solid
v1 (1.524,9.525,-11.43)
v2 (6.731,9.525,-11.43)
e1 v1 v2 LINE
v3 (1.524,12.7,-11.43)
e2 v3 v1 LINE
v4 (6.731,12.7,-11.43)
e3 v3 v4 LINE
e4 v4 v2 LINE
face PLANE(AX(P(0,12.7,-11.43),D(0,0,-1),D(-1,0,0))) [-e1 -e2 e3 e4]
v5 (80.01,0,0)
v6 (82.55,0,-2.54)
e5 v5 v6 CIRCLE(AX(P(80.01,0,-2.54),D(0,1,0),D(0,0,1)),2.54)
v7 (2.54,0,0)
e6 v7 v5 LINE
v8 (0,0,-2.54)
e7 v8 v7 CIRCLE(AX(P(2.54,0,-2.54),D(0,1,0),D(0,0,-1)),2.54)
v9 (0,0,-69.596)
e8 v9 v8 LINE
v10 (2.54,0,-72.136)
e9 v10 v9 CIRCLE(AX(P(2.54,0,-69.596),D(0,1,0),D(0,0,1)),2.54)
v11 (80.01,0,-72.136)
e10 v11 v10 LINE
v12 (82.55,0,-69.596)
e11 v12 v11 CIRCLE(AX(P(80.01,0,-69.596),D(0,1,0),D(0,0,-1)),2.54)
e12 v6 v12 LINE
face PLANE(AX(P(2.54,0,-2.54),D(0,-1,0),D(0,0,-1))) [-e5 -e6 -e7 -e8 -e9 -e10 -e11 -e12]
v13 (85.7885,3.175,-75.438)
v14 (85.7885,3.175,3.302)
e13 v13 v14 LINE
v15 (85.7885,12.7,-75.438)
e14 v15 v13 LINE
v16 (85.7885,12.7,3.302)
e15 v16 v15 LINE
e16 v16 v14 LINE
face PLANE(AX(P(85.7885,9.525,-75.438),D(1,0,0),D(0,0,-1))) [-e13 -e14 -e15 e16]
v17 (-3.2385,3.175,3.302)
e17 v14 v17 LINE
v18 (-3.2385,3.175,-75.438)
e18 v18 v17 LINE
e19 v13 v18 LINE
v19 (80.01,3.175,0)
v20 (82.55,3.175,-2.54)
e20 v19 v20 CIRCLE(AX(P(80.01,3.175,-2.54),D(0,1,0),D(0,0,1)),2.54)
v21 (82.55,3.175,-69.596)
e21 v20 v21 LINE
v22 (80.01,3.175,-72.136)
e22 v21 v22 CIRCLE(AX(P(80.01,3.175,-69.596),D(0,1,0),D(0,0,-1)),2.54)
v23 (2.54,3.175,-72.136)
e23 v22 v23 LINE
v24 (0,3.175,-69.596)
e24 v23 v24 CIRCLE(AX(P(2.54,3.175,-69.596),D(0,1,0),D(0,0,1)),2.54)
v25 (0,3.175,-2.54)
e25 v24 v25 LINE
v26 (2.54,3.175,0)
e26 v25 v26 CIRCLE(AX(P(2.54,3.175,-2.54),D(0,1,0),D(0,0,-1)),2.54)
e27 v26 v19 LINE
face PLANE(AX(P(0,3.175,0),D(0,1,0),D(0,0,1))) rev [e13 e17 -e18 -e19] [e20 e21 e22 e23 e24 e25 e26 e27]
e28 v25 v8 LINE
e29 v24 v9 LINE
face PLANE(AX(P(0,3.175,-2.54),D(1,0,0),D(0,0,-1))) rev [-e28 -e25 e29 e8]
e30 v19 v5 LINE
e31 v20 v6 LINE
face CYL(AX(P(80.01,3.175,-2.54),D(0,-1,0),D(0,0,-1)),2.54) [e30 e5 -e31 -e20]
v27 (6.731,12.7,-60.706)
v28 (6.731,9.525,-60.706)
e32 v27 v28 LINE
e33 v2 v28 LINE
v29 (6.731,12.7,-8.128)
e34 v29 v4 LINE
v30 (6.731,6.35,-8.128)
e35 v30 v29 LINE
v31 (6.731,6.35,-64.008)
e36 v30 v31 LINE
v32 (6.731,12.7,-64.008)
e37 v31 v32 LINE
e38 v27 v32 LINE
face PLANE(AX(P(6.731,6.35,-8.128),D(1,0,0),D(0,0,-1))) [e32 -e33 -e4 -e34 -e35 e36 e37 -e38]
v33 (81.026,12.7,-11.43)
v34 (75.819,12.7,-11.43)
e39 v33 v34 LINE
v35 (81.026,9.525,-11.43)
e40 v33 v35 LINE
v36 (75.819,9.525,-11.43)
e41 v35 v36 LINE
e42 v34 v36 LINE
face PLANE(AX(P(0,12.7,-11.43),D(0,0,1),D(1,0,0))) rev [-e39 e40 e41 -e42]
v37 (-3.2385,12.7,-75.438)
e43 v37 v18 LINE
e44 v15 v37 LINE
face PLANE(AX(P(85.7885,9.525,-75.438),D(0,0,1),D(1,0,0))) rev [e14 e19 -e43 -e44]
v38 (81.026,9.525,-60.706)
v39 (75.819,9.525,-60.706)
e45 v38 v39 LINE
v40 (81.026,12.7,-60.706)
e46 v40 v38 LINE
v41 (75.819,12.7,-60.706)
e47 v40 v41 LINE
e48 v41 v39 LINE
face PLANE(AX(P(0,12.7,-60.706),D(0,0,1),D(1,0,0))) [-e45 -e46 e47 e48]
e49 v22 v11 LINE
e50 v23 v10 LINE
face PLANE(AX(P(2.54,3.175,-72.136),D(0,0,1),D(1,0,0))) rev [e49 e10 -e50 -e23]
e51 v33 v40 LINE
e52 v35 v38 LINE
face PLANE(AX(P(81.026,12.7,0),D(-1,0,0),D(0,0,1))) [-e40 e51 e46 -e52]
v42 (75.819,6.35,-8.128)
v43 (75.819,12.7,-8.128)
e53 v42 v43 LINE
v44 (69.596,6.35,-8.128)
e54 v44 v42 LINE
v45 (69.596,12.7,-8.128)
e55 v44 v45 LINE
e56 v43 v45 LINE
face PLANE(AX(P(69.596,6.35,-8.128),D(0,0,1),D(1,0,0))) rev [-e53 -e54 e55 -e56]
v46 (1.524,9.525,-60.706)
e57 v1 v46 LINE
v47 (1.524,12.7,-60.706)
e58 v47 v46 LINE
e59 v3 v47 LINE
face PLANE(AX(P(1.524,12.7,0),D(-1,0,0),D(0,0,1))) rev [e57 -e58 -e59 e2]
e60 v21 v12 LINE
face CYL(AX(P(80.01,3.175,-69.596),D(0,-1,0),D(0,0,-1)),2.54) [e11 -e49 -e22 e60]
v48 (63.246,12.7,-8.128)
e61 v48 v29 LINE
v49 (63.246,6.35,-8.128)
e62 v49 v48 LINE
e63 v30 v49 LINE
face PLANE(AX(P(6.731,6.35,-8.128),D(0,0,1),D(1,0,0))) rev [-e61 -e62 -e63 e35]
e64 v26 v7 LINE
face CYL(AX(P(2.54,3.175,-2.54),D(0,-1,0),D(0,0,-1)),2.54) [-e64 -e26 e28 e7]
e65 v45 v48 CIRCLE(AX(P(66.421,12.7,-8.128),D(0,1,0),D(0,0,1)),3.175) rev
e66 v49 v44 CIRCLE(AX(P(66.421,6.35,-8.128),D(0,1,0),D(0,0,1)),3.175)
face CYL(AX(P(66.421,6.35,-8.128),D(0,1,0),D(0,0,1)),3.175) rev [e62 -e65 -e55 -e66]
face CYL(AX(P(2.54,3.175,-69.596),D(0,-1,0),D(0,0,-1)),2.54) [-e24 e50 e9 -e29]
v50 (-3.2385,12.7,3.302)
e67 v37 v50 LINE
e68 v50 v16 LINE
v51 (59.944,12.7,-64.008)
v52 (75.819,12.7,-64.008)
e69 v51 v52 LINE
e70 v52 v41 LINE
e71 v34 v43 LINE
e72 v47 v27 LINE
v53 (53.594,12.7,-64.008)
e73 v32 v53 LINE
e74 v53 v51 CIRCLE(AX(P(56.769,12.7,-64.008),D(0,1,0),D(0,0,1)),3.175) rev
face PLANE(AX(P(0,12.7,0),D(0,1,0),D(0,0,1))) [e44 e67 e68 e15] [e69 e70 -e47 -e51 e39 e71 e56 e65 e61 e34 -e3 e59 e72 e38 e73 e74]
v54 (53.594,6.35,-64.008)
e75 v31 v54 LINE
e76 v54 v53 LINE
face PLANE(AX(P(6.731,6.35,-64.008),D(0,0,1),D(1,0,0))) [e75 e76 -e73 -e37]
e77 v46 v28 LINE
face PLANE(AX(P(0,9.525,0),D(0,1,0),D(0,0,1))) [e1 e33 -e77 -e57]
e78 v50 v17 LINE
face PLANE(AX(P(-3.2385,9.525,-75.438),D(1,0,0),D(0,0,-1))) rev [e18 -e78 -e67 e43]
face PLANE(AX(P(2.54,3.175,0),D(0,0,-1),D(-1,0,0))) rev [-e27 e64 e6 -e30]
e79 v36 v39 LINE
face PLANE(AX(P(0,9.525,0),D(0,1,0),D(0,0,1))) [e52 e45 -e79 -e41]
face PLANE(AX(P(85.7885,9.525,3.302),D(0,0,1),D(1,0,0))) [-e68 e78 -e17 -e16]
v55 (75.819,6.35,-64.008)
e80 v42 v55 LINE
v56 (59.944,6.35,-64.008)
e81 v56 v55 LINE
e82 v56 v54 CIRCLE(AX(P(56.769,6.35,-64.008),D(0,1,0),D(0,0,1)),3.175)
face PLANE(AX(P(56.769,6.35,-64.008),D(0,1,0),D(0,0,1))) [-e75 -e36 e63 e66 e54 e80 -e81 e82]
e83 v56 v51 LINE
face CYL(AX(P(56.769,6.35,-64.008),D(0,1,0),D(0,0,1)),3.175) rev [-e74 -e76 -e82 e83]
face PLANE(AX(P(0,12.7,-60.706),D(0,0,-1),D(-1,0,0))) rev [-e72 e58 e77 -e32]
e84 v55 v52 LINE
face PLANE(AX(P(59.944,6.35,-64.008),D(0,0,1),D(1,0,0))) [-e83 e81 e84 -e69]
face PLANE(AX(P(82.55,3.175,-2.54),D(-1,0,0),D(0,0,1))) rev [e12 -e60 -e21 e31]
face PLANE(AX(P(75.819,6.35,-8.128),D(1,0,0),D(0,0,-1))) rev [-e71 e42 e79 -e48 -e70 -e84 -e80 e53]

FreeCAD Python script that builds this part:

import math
import FreeCAD as App
import Part
import Sketcher

V = App.Vector
Q = App.Units.Quantity


def add_polygon(sketch, points):
    """Adds a closed chain of lines whose ends are joined by coincident constraints."""
    first, n = sketch.GeometryCount, len(points)
    for a, b in zip(points, points[1:] + points[:1]):
        sketch.addGeometry(Part.LineSegment(App.Vector(*a, 0), App.Vector(*b, 0)), False)
    for i in range(n):
        sketch.addConstraint(Sketcher.Constraint("Coincident", first + i, 2, first + (i + 1) % n, 1))

doc = App.newDocument("Part")
body = doc.addObject("PartDesign::Body", "Body")

# Sketch on XZ plane
sketch1 = doc.addObject("Sketcher::SketchObject", "Sketch")
body.addObject(sketch1)
sketch1.AttachmentSupport = (doc.XZ_Plane, [""])
sketch1.MapMode = "FlatFace"
sketch1.addGeometry(Part.LineSegment(V(2.5, 0, 0), V(80, 0, 0)), False)
sketch1.addGeometry(Part.ArcOfCircle(Part.Circle(V(80, -2.5, 0), V(0, 0, 1), 2.5), math.radians(0), math.radians(90)), False)
sketch1.addGeometry(Part.LineSegment(V(82.5, -2.5, 0), V(82.5, -69.6, 0)), False)
sketch1.addGeometry(Part.ArcOfCircle(Part.Circle(V(80, -69.6, 0), V(0, 0, 1), 2.5), math.radians(-90), math.radians(0)), False)
sketch1.addGeometry(Part.LineSegment(V(80, -72.1, 0), V(2.5, -72.1, 0)), False)
sketch1.addGeometry(Part.ArcOfCircle(Part.Circle(V(2.5, -69.6, 0), V(0, 0, 1), 2.5), math.radians(-180), math.radians(-90)), False)
sketch1.addGeometry(Part.LineSegment(V(0, -69.6, 0), V(0, -2.5, 0)), False)
sketch1.addGeometry(Part.ArcOfCircle(Part.Circle(V(2.5, -2.5, 0), V(0, 0, 1), 2.5), math.radians(90), math.radians(180)), False)
sketch1.addConstraint(Sketcher.Constraint("Tangent", 0, 2, 1, 2))
sketch1.addConstraint(Sketcher.Constraint("Tangent", 1, 1, 2, 1))
sketch1.addConstraint(Sketcher.Constraint("Tangent", 2, 2, 3, 2))
sketch1.addConstraint(Sketcher.Constraint("Tangent", 3, 1, 4, 1))
sketch1.addConstraint(Sketcher.Constraint("Tangent", 4, 2, 5, 2))
sketch1.addConstraint(Sketcher.Constraint("Tangent", 5, 1, 6, 1))
sketch1.addConstraint(Sketcher.Constraint("Tangent", 6, 2, 7, 2))
sketch1.addConstraint(Sketcher.Constraint("Tangent", 7, 1, 0, 1))
sketch1.addConstraint(Sketcher.Constraint("Horizontal", 0))
sketch1.addConstraint(Sketcher.Constraint("Vertical", 2))
sketch1.addConstraint(Sketcher.Constraint("Horizontal", 4))
sketch1.addConstraint(Sketcher.Constraint("Vertical", 6))
sketch1.addConstraint(Sketcher.Constraint("Equal", 1, 3))
sketch1.addConstraint(Sketcher.Constraint("Equal", 3, 5))
sketch1.addConstraint(Sketcher.Constraint("Equal", 5, 7))
sketch1.addConstraint(Sketcher.Constraint("PointOnObject", 0, 2, -1))
sketch1.addConstraint(Sketcher.Constraint("PointOnObject", 5, 1, -2))
sketch1.addConstraint(Sketcher.Constraint("Radius", 1, Q("0.1 in")))
sketch1.addConstraint(Sketcher.Constraint("DistanceX", 0, 1, 0, 2, Q("3.05 in")))
sketch1.addConstraint(Sketcher.Constraint("DistanceY", 2, 2, 2, 1, Q("2.64 in")))
pad1 = doc.addObject("PartDesign::Pad", "Pad")
body.addObject(pad1)
pad1.Profile = sketch1
pad1.Length = Q("0.125 in")
pad1.Reversed = True

# Sketch on XZ plane
sketch2 = doc.addObject("Sketcher::SketchObject", "Sketch001")
body.addObject(sketch2)
sketch2.AttachmentSupport = (doc.XZ_Plane, [""])
sketch2.MapMode = "FlatFace"
sketch2.AttachmentOffset = App.Placement(V(0, 0, -0.125 * 25.4), App.Rotation())
add_polygon(sketch2, [(-3, -75), (-3, 3), (86, 3), (86, -75)])  # lines 0-3
sketch2.addConstraint(Sketcher.Constraint("Vertical", 0))
sketch2.addConstraint(Sketcher.Constraint("Horizontal", 1))
sketch2.addConstraint(Sketcher.Constraint("Vertical", 2))
sketch2.addConstraint(Sketcher.Constraint("Horizontal", 3))
sketch2.addConstraint(Sketcher.Constraint("DistanceY", 0, 1, 0, 2, Q("3.1 in")))
sketch2.addConstraint(Sketcher.Constraint("DistanceX", 1, 1, 1, 2, Q("3.505 in")))
sketch2.addConstraint(Sketcher.Constraint("DistanceY", -1, 1, 0, 2, Q("0.13 in")))
sketch2.addConstraint(Sketcher.Constraint("DistanceX", 0, 2, -1, 1, Q("0.1275 in")))
pad2 = doc.addObject("PartDesign::Pad", "Pad001")
body.addObject(pad2)
pad2.Profile = sketch2
pad2.Length = Q("0.25 in")
pad2.Reversed = True

# Sketch on XZ plane
sketch3 = doc.addObject("Sketcher::SketchObject", "Sketch002")
body.addObject(sketch3)
sketch3.AttachmentSupport = (doc.XZ_Plane, [""])
sketch3.MapMode = "FlatFace"
sketch3.AttachmentOffset = App.Placement(V(0, 0, -0.375 * 25.4), App.Rotation())
sketch3.addGeometry(Part.LineSegment(V(6.7, -8.1, 0), V(63.2, -8.1, 0)), False)
sketch3.addGeometry(Part.ArcOfCircle(Part.Circle(V(66.4, -8.1, 0), V(0, 0, 1), 3.2), math.radians(0), math.radians(180)), False)
sketch3.addGeometry(Part.LineSegment(V(69.6, -8.1, 0), V(75.8, -8.1, 0)), False)
sketch3.addGeometry(Part.LineSegment(V(75.8, -8.1, 0), V(75.8, -64, 0)), False)
sketch3.addGeometry(Part.LineSegment(V(75.8, -64, 0), V(59.9, -64, 0)), False)
sketch3.addGeometry(Part.ArcOfCircle(Part.Circle(V(56.8, -64, 0), V(0, 0, 1), 3.2), math.radians(180), math.radians(360)), False)
sketch3.addGeometry(Part.LineSegment(V(53.6, -64, 0), V(6.7, -64, 0)), False)
sketch3.addGeometry(Part.LineSegment(V(6.7, -64, 0), V(6.7, -8.1, 0)), False)
sketch3.addConstraint(Sketcher.Constraint("Coincident", 0, 2, 1, 2))
sketch3.addConstraint(Sketcher.Constraint("Coincident", 1, 1, 2, 1))
sketch3.addConstraint(Sketcher.Constraint("Coincident", 2, 2, 3, 1))
sketch3.addConstraint(Sketcher.Constraint("Coincident", 3, 2, 4, 1))
sketch3.addConstraint(Sketcher.Constraint("Coincident", 4, 2, 5, 2))
sketch3.addConstraint(Sketcher.Constraint("Coincident", 5, 1, 6, 1))
sketch3.addConstraint(Sketcher.Constraint("Coincident", 6, 2, 7, 1))
sketch3.addConstraint(Sketcher.Constraint("Coincident", 7, 2, 0, 1))
sketch3.addConstraint(Sketcher.Constraint("Horizontal", 0))
sketch3.addConstraint(Sketcher.Constraint("Horizontal", 2))
sketch3.addConstraint(Sketcher.Constraint("Vertical", 3))
sketch3.addConstraint(Sketcher.Constraint("Horizontal", 4))
sketch3.addConstraint(Sketcher.Constraint("Horizontal", 6))
sketch3.addConstraint(Sketcher.Constraint("Vertical", 7))
sketch3.addConstraint(Sketcher.Constraint("Equal", 1, 5))
sketch3.addConstraint(Sketcher.Constraint("Horizontal", 1, 3, 0, 2))
sketch3.addConstraint(Sketcher.Constraint("Horizontal", 0, 2, 1, 1))
sketch3.addConstraint(Sketcher.Constraint("Horizontal", 5, 3, 3, 2))
sketch3.addConstraint(Sketcher.Constraint("Horizontal", 4, 2, 5, 1))
sketch3.addConstraint(Sketcher.Constraint("DistanceY", 3, 2, 3, 1, Q("2.2 in")))
sketch3.addConstraint(Sketcher.Constraint("Radius", 1, Q("0.125 in")))
sketch3.addConstraint(Sketcher.Constraint("DistanceX", 0, 1, 0, 2, Q("2.225 in")))
sketch3.addConstraint(Sketcher.Constraint("DistanceX", 2, 1, 2, 2, Q("0.245 in")))
sketch3.addConstraint(Sketcher.Constraint("DistanceX", 4, 2, 4, 1, Q("0.625 in")))
sketch3.addConstraint(Sketcher.Constraint("DistanceY", 1, 3, -1, 1, Q("0.32 in")))
sketch3.addConstraint(Sketcher.Constraint("DistanceX", -1, 1, 0, 2, Q("2.49 in")))
pocket1 = doc.addObject("PartDesign::Pocket", "Pocket")
body.addObject(pocket1)
pocket1.Profile = sketch3
pocket1.Length = Q("0.125 in")
pocket1.Reversed = True

# Sketch on XZ plane
sketch4 = doc.addObject("Sketcher::SketchObject", "Sketch003")
body.addObject(sketch4)
sketch4.AttachmentSupport = (doc.XZ_Plane, [""])
sketch4.MapMode = "FlatFace"
sketch4.AttachmentOffset = App.Placement(V(0, 0, -0.375 * 25.4), App.Rotation())
add_polygon(sketch4, [(-3.2, -75.4), (-3.2, 3.3), (85.8, 3.3), (85.8, -75.4)])  # lines 0-3
sketch4.addGeometry(Part.LineSegment(V(6.7, -8.1, 0), V(6.7, -11.4, 0)), False)  # 4
sketch4.addGeometry(Part.LineSegment(V(6.7, -11.4, 0), V(1.5, -11.4, 0)), False)  # 5
sketch4.addGeometry(Part.LineSegment(V(1.5, -11.4, 0), V(1.5, -60.7, 0)), False)  # 6
sketch4.addGeometry(Part.LineSegment(V(1.5, -60.7, 0), V(6.7, -60.7, 0)), False)  # 7
sketch4.addGeometry(Part.LineSegment(V(6.7, -60.7, 0), V(6.7, -64, 0)), False)  # 8
sketch4.addGeometry(Part.LineSegment(V(6.7, -64, 0), V(53.6, -64, 0)), False)  # 9
sketch4.addGeometry(Part.ArcOfCircle(Part.Circle(V(56.8, -64, 0), V(0, 0, 1), 3.2), math.radians(180), math.radians(360)), False)  # 10
sketch4.addGeometry(Part.LineSegment(V(59.9, -64, 0), V(75.8, -64, 0)), False)  # 11
sketch4.addGeometry(Part.LineSegment(V(75.8, -64, 0), V(75.8, -60.7, 0)), False)  # 12
sketch4.addGeometry(Part.LineSegment(V(75.8, -60.7, 0), V(81, -60.7, 0)), False)  # 13
sketch4.addGeometry(Part.LineSegment(V(81, -60.7, 0), V(81, -11.4, 0)), False)  # 14
sketch4.addGeometry(Part.LineSegment(V(81, -11.4, 0), V(75.8, -11.4, 0)), False)  # 15
sketch4.addGeometry(Part.LineSegment(V(75.8, -11.4, 0), V(75.8, -8.1, 0)), False)  # 16
sketch4.addGeometry(Part.LineSegment(V(75.8, -8.1, 0), V(69.6, -8.1, 0)), False)  # 17
sketch4.addGeometry(Part.ArcOfCircle(Part.Circle(V(66.4, -8.1, 0), V(0, 0, 1), 3.2), math.radians(0), math.radians(180)), False)  # 18
sketch4.addGeometry(Part.LineSegment(V(63.2, -8.1, 0), V(6.7, -8.1, 0)), False)  # 19
sketch4.addConstraint(Sketcher.Constraint("Coincident", 4, 2, 5, 1))
sketch4.addConstraint(Sketcher.Constraint("Coincident", 5, 2, 6, 1))
sketch4.addConstraint(Sketcher.Constraint("Coincident", 6, 2, 7, 1))
sketch4.addConstraint(Sketcher.Constraint("Coincident", 7, 2, 8, 1))
sketch4.addConstraint(Sketcher.Constraint("Coincident", 8, 2, 9, 1))
sketch4.addConstraint(Sketcher.Constraint("Coincident", 9, 2, 10, 1))
sketch4.addConstraint(Sketcher.Constraint("Coincident", 10, 2, 11, 1))
sketch4.addConstraint(Sketcher.Constraint("Coincident", 11, 2, 12, 1))
sketch4.addConstraint(Sketcher.Constraint("Coincident", 12, 2, 13, 1))
sketch4.addConstraint(Sketcher.Constraint("Coincident", 13, 2, 14, 1))
sketch4.addConstraint(Sketcher.Constraint("Coincident", 14, 2, 15, 1))
sketch4.addConstraint(Sketcher.Constraint("Coincident", 15, 2, 16, 1))
sketch4.addConstraint(Sketcher.Constraint("Coincident", 16, 2, 17, 1))
sketch4.addConstraint(Sketcher.Constraint("Coincident", 17, 2, 18, 1))
sketch4.addConstraint(Sketcher.Constraint("Coincident", 18, 2, 19, 1))
sketch4.addConstraint(Sketcher.Constraint("Coincident", 19, 2, 4, 1))
sketch4.addConstraint(Sketcher.Constraint("Vertical", 0))
sketch4.addConstraint(Sketcher.Constraint("Horizontal", 1))
sketch4.addConstraint(Sketcher.Constraint("Vertical", 2))
sketch4.addConstraint(Sketcher.Constraint("Horizontal", 3))
sketch4.addConstraint(Sketcher.Constraint("Vertical", 4))
sketch4.addConstraint(Sketcher.Constraint("Horizontal", 5))
sketch4.addConstraint(Sketcher.Constraint("Vertical", 6))
sketch4.addConstraint(Sketcher.Constraint("Horizontal", 7))
sketch4.addConstraint(Sketcher.Constraint("Vertical", 8))
sketch4.addConstraint(Sketcher.Constraint("Horizontal", 9))
sketch4.addConstraint(Sketcher.Constraint("Horizontal", 11))
sketch4.addConstraint(Sketcher.Constraint("Vertical", 12))
sketch4.addConstraint(Sketcher.Constraint("Horizontal", 13))
sketch4.addConstraint(Sketcher.Constraint("Vertical", 14))
sketch4.addConstraint(Sketcher.Constraint("Horizontal", 15))
sketch4.addConstraint(Sketcher.Constraint("Vertical", 16))
sketch4.addConstraint(Sketcher.Constraint("Horizontal", 17))
sketch4.addConstraint(Sketcher.Constraint("Horizontal", 19))
sketch4.addConstraint(Sketcher.Constraint("Equal", 10, 18))
sketch4.addConstraint(Sketcher.Constraint("Horizontal", 10, 3, 8, 2))
sketch4.addConstraint(Sketcher.Constraint("Horizontal", 9, 2, 10, 2))
sketch4.addConstraint(Sketcher.Constraint("Horizontal", 7, 2, 12, 2))
sketch4.addConstraint(Sketcher.Constraint("Horizontal", 5, 2, 14, 2))
sketch4.addConstraint(Sketcher.Constraint("Horizontal", 18, 3, 16, 2))
sketch4.addConstraint(Sketcher.Constraint("Horizontal", 17, 2, 18, 2))
sketch4.addConstraint(Sketcher.Constraint("Vertical", 4, 2, 7, 2))
sketch4.addConstraint(Sketcher.Constraint("Vertical", 12, 2, 15, 2))
sketch4.addConstraint(Sketcher.Constraint("Equal", 7, 13))
sketch4.addConstraint(Sketcher.Constraint("Equal", 4, 8))
sketch4.addConstraint(Sketcher.Constraint("DistanceY", 0, 1, 0, 2, Q("3.1 in")))
sketch4.addConstraint(Sketcher.Constraint("Radius", 10, Q("0.125 in")))
sketch4.addConstraint(Sketcher.Constraint("DistanceY", 4, 2, 4, 1, Q("0.13 in")))
sketch4.addConstraint(Sketcher.Constraint("DistanceY", 6, 2, 6, 1, Q("1.94 in")))
sketch4.addConstraint(Sketcher.Constraint("DistanceX", 18, 2, 14, 2, Q("0.7 in")))
sketch4.addConstraint(Sketcher.Constraint("DistanceX", 1, 1, 1, 2, Q("3.505 in")))
sketch4.addConstraint(Sketcher.Constraint("DistanceX", 5, 2, 5, 1, Q("0.205 in")))
sketch4.addConstraint(Sketcher.Constraint("DistanceX", 9, 1, 9, 2, Q("1.845 in")))
sketch4.addConstraint(Sketcher.Constraint("DistanceX", 11, 1, 11, 2, Q("0.625 in")))
sketch4.addConstraint(Sketcher.Constraint("DistanceY", 10, 3, -1, 1, Q("2.52 in")))
sketch4.addConstraint(Sketcher.Constraint("DistanceY", -1, 1, 0, 2, Q("0.13 in")))
sketch4.addConstraint(Sketcher.Constraint("DistanceX", -1, 1, 5, 2, Q("0.06 in")))
sketch4.addConstraint(Sketcher.Constraint("DistanceX", 0, 2, 5, 2, Q("0.1875 in")))
pad3 = doc.addObject("PartDesign::Pad", "Pad002")
body.addObject(pad3)
pad3.Profile = sketch4
pad3.Length = Q("0.125 in")
pad3.Reversed = True

doc.recompute()
